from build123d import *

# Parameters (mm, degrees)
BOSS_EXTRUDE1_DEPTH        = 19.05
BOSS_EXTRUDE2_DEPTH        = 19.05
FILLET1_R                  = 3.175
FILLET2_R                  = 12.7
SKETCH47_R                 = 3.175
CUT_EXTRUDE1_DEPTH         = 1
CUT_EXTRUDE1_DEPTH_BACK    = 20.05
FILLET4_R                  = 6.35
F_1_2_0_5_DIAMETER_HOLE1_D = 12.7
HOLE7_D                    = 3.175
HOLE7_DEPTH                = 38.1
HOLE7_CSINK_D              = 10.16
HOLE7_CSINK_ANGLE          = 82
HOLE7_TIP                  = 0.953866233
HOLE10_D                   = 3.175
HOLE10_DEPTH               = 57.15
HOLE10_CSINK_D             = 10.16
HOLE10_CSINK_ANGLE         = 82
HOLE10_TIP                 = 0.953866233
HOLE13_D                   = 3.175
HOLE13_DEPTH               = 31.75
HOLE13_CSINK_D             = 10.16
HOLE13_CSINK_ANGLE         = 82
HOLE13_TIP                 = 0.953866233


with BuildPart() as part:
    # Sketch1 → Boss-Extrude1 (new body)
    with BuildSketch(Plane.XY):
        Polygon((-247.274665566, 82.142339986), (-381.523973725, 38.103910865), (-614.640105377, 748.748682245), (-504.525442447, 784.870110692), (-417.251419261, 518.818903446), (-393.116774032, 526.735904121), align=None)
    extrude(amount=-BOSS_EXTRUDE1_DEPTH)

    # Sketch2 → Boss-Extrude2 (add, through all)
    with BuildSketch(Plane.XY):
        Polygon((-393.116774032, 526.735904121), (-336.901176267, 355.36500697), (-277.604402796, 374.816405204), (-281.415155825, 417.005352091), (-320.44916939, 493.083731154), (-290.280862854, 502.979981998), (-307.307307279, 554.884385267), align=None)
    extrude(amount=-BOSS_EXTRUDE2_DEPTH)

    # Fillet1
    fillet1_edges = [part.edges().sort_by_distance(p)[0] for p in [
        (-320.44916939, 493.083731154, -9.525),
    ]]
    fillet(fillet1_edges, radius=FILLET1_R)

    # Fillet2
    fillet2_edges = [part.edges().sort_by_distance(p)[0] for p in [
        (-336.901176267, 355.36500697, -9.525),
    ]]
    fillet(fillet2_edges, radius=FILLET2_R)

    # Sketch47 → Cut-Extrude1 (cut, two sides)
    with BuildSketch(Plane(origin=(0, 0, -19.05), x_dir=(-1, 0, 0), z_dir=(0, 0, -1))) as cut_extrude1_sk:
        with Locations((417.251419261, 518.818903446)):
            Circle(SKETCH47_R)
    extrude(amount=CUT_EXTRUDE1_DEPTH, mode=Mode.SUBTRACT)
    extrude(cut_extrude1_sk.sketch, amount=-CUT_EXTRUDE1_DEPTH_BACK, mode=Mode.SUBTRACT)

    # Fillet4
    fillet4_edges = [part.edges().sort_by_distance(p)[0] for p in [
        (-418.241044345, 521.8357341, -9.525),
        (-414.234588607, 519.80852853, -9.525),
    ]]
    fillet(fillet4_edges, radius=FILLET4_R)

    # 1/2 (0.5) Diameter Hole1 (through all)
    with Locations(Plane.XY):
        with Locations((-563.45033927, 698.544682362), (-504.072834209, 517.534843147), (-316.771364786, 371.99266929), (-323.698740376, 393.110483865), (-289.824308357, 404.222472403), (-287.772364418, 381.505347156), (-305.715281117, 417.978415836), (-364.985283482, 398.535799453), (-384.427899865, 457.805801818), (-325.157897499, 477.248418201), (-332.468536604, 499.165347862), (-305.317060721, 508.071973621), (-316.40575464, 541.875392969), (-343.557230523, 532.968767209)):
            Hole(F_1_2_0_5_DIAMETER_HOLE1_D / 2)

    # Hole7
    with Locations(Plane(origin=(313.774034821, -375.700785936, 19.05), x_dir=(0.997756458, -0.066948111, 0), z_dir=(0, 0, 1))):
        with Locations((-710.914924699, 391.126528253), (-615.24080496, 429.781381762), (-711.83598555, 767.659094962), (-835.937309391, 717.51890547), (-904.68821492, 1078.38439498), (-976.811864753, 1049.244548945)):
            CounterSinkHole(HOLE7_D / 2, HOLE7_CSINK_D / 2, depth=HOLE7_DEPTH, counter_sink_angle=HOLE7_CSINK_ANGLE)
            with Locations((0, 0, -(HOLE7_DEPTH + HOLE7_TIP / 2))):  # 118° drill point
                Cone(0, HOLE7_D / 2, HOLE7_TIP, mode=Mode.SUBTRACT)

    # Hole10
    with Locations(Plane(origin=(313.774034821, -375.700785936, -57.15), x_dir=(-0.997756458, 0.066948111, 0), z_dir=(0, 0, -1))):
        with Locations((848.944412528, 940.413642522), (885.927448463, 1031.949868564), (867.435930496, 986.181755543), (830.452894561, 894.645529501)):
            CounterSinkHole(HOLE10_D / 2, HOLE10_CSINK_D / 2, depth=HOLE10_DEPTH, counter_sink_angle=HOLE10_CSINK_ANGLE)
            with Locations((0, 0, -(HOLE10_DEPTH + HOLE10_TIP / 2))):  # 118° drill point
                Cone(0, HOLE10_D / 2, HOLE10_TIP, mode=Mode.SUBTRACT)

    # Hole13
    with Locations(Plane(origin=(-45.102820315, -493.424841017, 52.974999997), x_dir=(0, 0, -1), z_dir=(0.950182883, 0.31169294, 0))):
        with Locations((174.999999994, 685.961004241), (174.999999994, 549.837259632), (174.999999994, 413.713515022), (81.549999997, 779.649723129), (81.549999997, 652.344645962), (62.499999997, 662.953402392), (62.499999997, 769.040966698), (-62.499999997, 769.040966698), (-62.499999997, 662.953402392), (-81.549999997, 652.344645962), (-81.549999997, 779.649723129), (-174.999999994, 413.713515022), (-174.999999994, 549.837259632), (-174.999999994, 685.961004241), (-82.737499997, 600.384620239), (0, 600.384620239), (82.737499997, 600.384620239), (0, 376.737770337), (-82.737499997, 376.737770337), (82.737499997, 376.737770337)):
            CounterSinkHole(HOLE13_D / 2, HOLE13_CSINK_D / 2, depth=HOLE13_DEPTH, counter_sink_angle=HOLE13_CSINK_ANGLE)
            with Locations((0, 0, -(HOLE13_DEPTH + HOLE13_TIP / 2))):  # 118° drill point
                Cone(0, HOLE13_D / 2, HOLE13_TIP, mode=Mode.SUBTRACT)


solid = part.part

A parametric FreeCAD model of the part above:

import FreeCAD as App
import Part
import Sketcher

V = App.Vector
Q = App.Units.Quantity


def edges_at(feature, points):
    """Names of the edges that pass closest to the given points."""
    edges = feature.Shape.Edges
    near = lambda p: min(range(len(edges)), key=lambda i: edges[i].distToShape(Part.Vertex(*p))[0])
    return sorted({f"Edge{near(p) + 1}" for p in points})


def add_polygon(sketch, points):
    """Adds a closed chain of lines whose ends are joined by coincident constraints."""
    first, n = sketch.GeometryCount, len(points)
    for a, b in zip(points, points[1:] + points[:1]):
        sketch.addGeometry(Part.LineSegment(App.Vector(*a, 0), App.Vector(*b, 0)), False)
    for i in range(n):
        sketch.addConstraint(Sketcher.Constraint("Coincident", first + i, 2, first + (i + 1) % n, 1))

doc = App.newDocument("Part")
body = doc.addObject("PartDesign::Body", "Body")

# Sketch on XY plane
sketch1 = doc.addObject("Sketcher::SketchObject", "Sketch")
body.addObject(sketch1)
sketch1.AttachmentSupport = (doc.XY_Plane, [""])
sketch1.MapMode = "FlatFace"
add_polygon(sketch1, [(-382, 38), (-247, 82), (-393, 527), (-417, 519), (-505, 785), (-615, 749)])  # lines 0-5
sketch1.addConstraint([
    Sketcher.Constraint("Perpendicular", 0, 1),
    Sketcher.Constraint("Perpendicular", 1, 2),
    Sketcher.Constraint("Perpendicular", 2, 3),
    Sketcher.Constraint("Perpendicular", 3, 4),
    Sketcher.Constraint("Perpendicular", 4, 5),
    Sketcher.Constraint("Distance", 2, Q("1 in")),
    Sketcher.Constraint("Distance", 3, 280.0),
    Sketcher.Constraint("DistanceY", 2, 2, 1, 2, 7.917001),
    Sketcher.Constraint("DistanceX", 1, 2, 5, 2, 11.5928),
    Sketcher.Constraint("DistanceY", 5, 2, 3, 2, 746.7662),
    Sketcher.Constraint("DistanceY", -1, 1, 0, 2, 82.14234),
    Sketcher.Constraint("DistanceX", 2, 2, -1, 1, 417.251419),
])
pad1 = doc.addObject("PartDesign::Pad", "Pad")
body.addObject(pad1)
pad1.Profile = sketch1
pad1.Length = Q("0.75 in")
pad1.Reversed = True

# Sketch on XY plane
sketch2 = doc.addObject("Sketcher::SketchObject", "Sketch001")
body.addObject(sketch2)
sketch2.AttachmentSupport = (doc.XY_Plane, [""])
sketch2.MapMode = "FlatFace"
add_polygon(sketch2, [(-393, 527), (-337, 355), (-278, 375), (-281, 417), (-320, 493), (-290, 503), (-307, 555)])  # lines 0-6
sketch2.addConstraint([
    Sketcher.Constraint("Perpendicular", 0, 1),
    Sketcher.Constraint("Parallel", 1, 4),
    Sketcher.Constraint("Perpendicular", 4, 5),
    Sketcher.Constraint("Perpendicular", 5, 6),
    Sketcher.Constraint("Distance", 4, Q("1.25 in")),
    Sketcher.Constraint("Distance", 0, 180.355698),
    Sketcher.Constraint("Distance", 5, 54.625698),
    Sketcher.Constraint("DistanceY", 0, 2, 1, 2, 19.451398),
    Sketcher.Constraint("Distance", 6, 90.308369),
    Sketcher.Constraint("DistanceX", 3, 2, -1, 1, 320.449169),
    Sketcher.Constraint("DistanceY", -1, 1, 3, 2, 493.083731),
    Sketcher.Constraint("DistanceY", -1, 1, 4, 2, 502.979982),
    Sketcher.Constraint("DistanceX", 0, 2, 2, 2, 55.48602),
    Sketcher.Constraint("DistanceY", 2, 2, 3, 2, 76.078379),
])
pad2 = doc.addObject("PartDesign::Pad", "Pad001")
body.addObject(pad2)
pad2.Profile = sketch2
pad2.Length = Q("0.75 in")
pad2.Reversed = True
doc.recompute()

fillet = doc.addObject("PartDesign::Fillet", "Fillet")
body.addObject(fillet)
fillet.Base = (pad2, edges_at(pad2, [(-320.449, 493.084, -9.525)]))
fillet.Radius = Q("0.125 in")
doc.recompute()

fillet2 = doc.addObject("PartDesign::Fillet", "Fillet001")
body.addObject(fillet2)
fillet2.Base = (fillet, edges_at(fillet, [(-336.901, 355.365, -9.525)]))
fillet2.Radius = Q("0.5 in")

# Sketch on XY plane
sketch3 = doc.addObject("Sketcher::SketchObject", "Sketch002")
body.addObject(sketch3)
sketch3.AttachmentSupport = (doc.XY_Plane, [""])
sketch3.MapMode = "FlatFace"
sketch3.AttachmentOffset = App.Placement(V(0, 0, -0.75 * 25.4), App.Rotation())
sketch3.addGeometry(Part.Circle(V(-417.3, 518.8, 0), V(0, 0, 1), 3.2), False)
sketch3.addConstraint([
    Sketcher.Constraint("Diameter", 0, Q("0.25 in")),
    Sketcher.Constraint("DistanceX", 0, 3, -1, 1, 417.251419),
    Sketcher.Constraint("DistanceY", -1, 1, 0, 3, 518.818903),
])
pocket1 = doc.addObject("PartDesign::Pocket", "Pocket")
body.addObject(pocket1)
pocket1.Profile = sketch3
pocket1.Type = "ThroughAll"
pocket1.Midplane = True
doc.recompute()

fillet3 = doc.addObject("PartDesign::Fillet", "Fillet002")
body.addObject(fillet3)
fillet3.Base = (pocket1, edges_at(pocket1, [(-418.241, 521.836, -9.525), (-414.235, 519.809, -9.525)]))
fillet3.Radius = Q("0.25 in")

# Sketch on XY plane
sketch4 = doc.addObject("Sketcher::SketchObject", "Sketch003")
body.addObject(sketch4)
sketch4.AttachmentSupport = (doc.XY_Plane, [""])
sketch4.MapMode = "FlatFace"
sketch4.addGeometry([
    Part.Circle(V(-563, 699, 0), V(0, 0, 1), 6),  # 0
    Part.Circle(V(-504, 518, 0), V(0, 0, 1), 6),  # 1
    Part.Circle(V(-317, 372, 0), V(0, 0, 1), 6),  # 2
    Part.Circle(V(-324, 393, 0), V(0, 0, 1), 6),  # 3
    Part.Circle(V(-290, 404, 0), V(0, 0, 1), 6),  # 4
    Part.Circle(V(-288, 382, 0), V(0, 0, 1), 6),  # 5
    Part.Circle(V(-306, 418, 0), V(0, 0, 1), 6),  # 6
    Part.Circle(V(-365, 399, 0), V(0, 0, 1), 6),  # 7
    Part.Circle(V(-384, 458, 0), V(0, 0, 1), 6),  # 8
    Part.Circle(V(-325, 477, 0), V(0, 0, 1), 6),  # 9
    Part.Circle(V(-332, 499, 0), V(0, 0, 1), 6),  # 10
    Part.Circle(V(-305, 508, 0), V(0, 0, 1), 6),  # 11
    Part.Circle(V(-316, 542, 0), V(0, 0, 1), 6),  # 12
    Part.Circle(V(-344, 533, 0), V(0, 0, 1), 6),  # 13
], False)
sketch4.addConstraint([
    Sketcher.Constraint("Equal", 0, 1),
    Sketcher.Constraint("Equal", 1, 2),
    Sketcher.Constraint("Equal", 2, 3),
    Sketcher.Constraint("Equal", 3, 4),
    Sketcher.Constraint("Equal", 4, 5),
    Sketcher.Constraint("Equal", 5, 6),
    Sketcher.Constraint("Equal", 6, 7),
    Sketcher.Constraint("Equal", 7, 8),
    Sketcher.Constraint("Equal", 8, 9),
    Sketcher.Constraint("Equal", 9, 10),
    Sketcher.Constraint("Equal", 10, 11),
    Sketcher.Constraint("Equal", 11, 12),
    Sketcher.Constraint("Equal", 12, 13),
    Sketcher.Constraint("Diameter", 0, Q("0.5 in")),
    Sketcher.Constraint("DistanceX", 8, 3, 11, 3, Q("3.1146 in")),
    Sketcher.Constraint("DistanceY", -1, 1, 7, 3, 398.535799),
    Sketcher.Constraint("DistanceX", 8, 3, -1, 1, 384.4279),
    Sketcher.Constraint("DistanceY", -1, 1, 8, 3, 457.805802),
    Sketcher.Constraint("DistanceX", 0, 3, 3, 3, 239.751599),
    Sketcher.Constraint("DistanceY", 3, 3, 0, 3, 305.434198),
    Sketcher.Constraint("DistanceX", 2, 3, 5, 3, 28.999),
    Sketcher.Constraint("DistanceY", 4, 3, 11, 3, 103.849501),
    Sketcher.Constraint("DistanceX", 0, 3, -1, 1, 563.450339),
    Sketcher.Constraint("DistanceY", -1, 1, 2, 3, 371.992669),
    Sketcher.Constraint("DistanceX", 4, 3, -1, 1, 289.824308),
    Sketcher.Constraint("DistanceX", 6, 3, -1, 1, 305.715281),
    Sketcher.Constraint("DistanceY", -1, 1, 9, 3, 477.248418),
    Sketcher.Constraint("DistanceX", 13, 3, -1, 1, 343.557231),
    Sketcher.Constraint("DistanceY", 1, 3, 0, 3, 181.009839),
    Sketcher.Constraint("DistanceX", 1, 3, 2, 3, 187.301469),
    Sketcher.Constraint("DistanceY", 3, 3, 4, 3, 11.111989),
    Sketcher.Constraint("DistanceY", 3, 3, 6, 3, 24.867932),
    Sketcher.Constraint("DistanceY", 5, 3, 6, 3, 36.473069),
    Sketcher.Constraint("DistanceX", 7, 3, 2, 3, 48.213919),
    Sketcher.Constraint("DistanceY", 4, 3, 8, 3, 53.583329),
    Sketcher.Constraint("DistanceX", 9, 3, 4, 3, 35.333589),
    Sketcher.Constraint("DistanceX", 10, 3, 9, 3, 7.310639),
    Sketcher.Constraint("DistanceY", 9, 3, 10, 3, 21.91693),
    Sketcher.Constraint("DistanceY", 11, 3, 12, 3, 33.803419),
    Sketcher.Constraint("DistanceX", 10, 3, 12, 3, 16.062782),
    Sketcher.Constraint("DistanceY", 10, 3, 13, 3, 33.803419),
    Sketcher.Constraint("DistanceX", 1, 3, -1, 1, 504.072834),
])
doc.recompute()
hole = doc.addObject("PartDesign::Hole", "Hole")
body.addObject(hole)
hole.Profile = sketch4
hole.ThreadType = "None"
hole.Diameter = Q("0.5 in")
hole.DepthType = "ThroughAll"

# Sketch on XY plane
sketch5 = doc.addObject("Sketcher::SketchObject", "Sketch004")
body.addObject(sketch5)
sketch5.AttachmentSupport = (doc.XY_Plane, [""])
sketch5.MapMode = "FlatFace"
sketch5.AttachmentOffset = App.Placement(V(0, 0, 0.75 * 25.4), App.Rotation())
sketch5.addGeometry([
    Part.Circle(V(-369.4, 62.1, 0), V(0, 0, 1), 1.6),  # 0
    Part.Circle(V(-271.3, 94.3, 0), V(0, 0, 1), 1.6),  # 1
    Part.Circle(V(-345.1, 437.9, 0), V(0, 0, 1), 1.6),  # 2
    Part.Circle(V(-472.3, 396.2, 0), V(0, 0, 1), 1.6),  # 3
    Part.Circle(V(-516.7, 760.8, 0), V(0, 0, 1), 1.6),  # 4
    Part.Circle(V(-590.6, 736.6, 0), V(0, 0, 1), 1.6),  # 5
], False)
sketch5.addConstraint([
    Sketcher.Constraint("Equal", 0, 1),
    Sketcher.Constraint("Equal", 1, 2),
    Sketcher.Constraint("Equal", 2, 3),
    Sketcher.Constraint("Equal", 3, 4),
    Sketcher.Constraint("Equal", 4, 5),
    Sketcher.Constraint("Diameter", 0, Q("0.125 in")),
    Sketcher.Constraint("DistanceX", 1, 3, -1, 1, 271.3134),
    Sketcher.Constraint("DistanceX", 0, 3, -1, 1, 369.36074),
    Sketcher.Constraint("DistanceX", 2, 3, -1, 1, 345.071591),
    Sketcher.Constraint("DistanceY", -1, 1, 2, 3, 437.892108),
    Sketcher.Constraint("DistanceX", 3, 3, -1, 1, 472.251279),
    Sketcher.Constraint("DistanceY", -1, 1, 3, 3, 396.17276),
    Sketcher.Constraint("DistanceX", 5, 3, -1, 1, 590.601371),
    Sketcher.Constraint("DistanceY", -1, 1, 5, 3, 736.585448),
    Sketcher.Constraint("DistanceY", 0, 3, 1, 3, 32.162928),
    Sketcher.Constraint("DistanceY", 0, 3, 4, 3, 698.688731),
    Sketcher.Constraint("DistanceY", -1, 1, 0, 3, 62.142645),
    Sketcher.Constraint("DistanceX", 4, 3, -1, 1, 516.688676),
])
doc.recompute()
hole2 = doc.addObject("PartDesign::Hole", "Hole001")
body.addObject(hole2)
hole2.Profile = sketch5
hole2.ThreadType = "None"
hole2.Diameter = Q("0.125 in")
hole2.DepthType = "Dimension"
hole2.Depth = Q("1.5 in")
hole2.DrillPoint = "Angled"
hole2.DrillPointAngle = 118
hole2.HoleCutType = "Countersink"
hole2.HoleCutDiameter = Q("0.4 in")
hole2.HoleCutCountersinkAngle = 82

# Sketch on XY plane
sketch6 = doc.addObject("Sketcher::SketchObject", "Sketch005")
body.addObject(sketch6)
sketch6.AttachmentSupport = (doc.XY_Plane, [""])
sketch6.MapMode = "FlatFace"
sketch6.AttachmentOffset = App.Placement(V(0, 0, -2.25 * 25.4), App.Rotation())
sketch6.addGeometry([
    Part.Circle(V(-470.3, 619.4, 0), V(0, 0, 1), 1.6),
    Part.Circle(V(-501.1, 713.2, 0), V(0, 0, 1), 1.6),
    Part.Circle(V(-485.7, 666.3, 0), V(0, 0, 1), 1.6),
    Part.Circle(V(-454.9, 572.5, 0), V(0, 0, 1), 1.6),
], False)
sketch6.addConstraint([
    Sketcher.Constraint("Equal", 0, 1),
    Sketcher.Constraint("Equal", 1, 2),
    Sketcher.Constraint("Equal", 2, 3),
    Sketcher.Constraint("Diameter", 0, Q("0.125 in")),
    Sketcher.Constraint("DistanceX", 0, 3, -1, 1, 470.306818),
    Sketcher.Constraint("DistanceY", -1, 1, 1, 3, 713.245029),
    Sketcher.Constraint("DistanceX", 2, 3, -1, 1, 485.692761),
    Sketcher.Constraint("DistanceY", -1, 1, 3, 3, 572.534821),
    Sketcher.Constraint("DistanceX", 1, 3, 3, 3, 46.157828),
    Sketcher.Constraint("DistanceY", -1, 1, 0, 3, 619.438224),
    Sketcher.Constraint("DistanceX", 1, 3, -1, 1, 501.078704),
    Sketcher.Constraint("DistanceY", -1, 1, 2, 3, 666.341627),
])
doc.recompute()
hole3 = doc.addObject("PartDesign::Hole", "Hole002")
body.addObject(hole3)
hole3.Profile = sketch6
hole3.ThreadType = "None"
hole3.Diameter = Q("0.125 in")
hole3.DepthType = "Dimension"
hole3.Depth = Q("2.25 in")
hole3.DrillPoint = "Angled"
hole3.DrillPointAngle = 118
hole3.HoleCutType = "Countersink"
hole3.HoleCutDiameter = Q("0.4 in")
hole3.HoleCutCountersinkAngle = 82
hole3.Reversed = True

# Sketch on an angled plane
sketch7 = doc.addObject("Sketcher::SketchObject", "Sketch006")
body.addObject(sketch7)
sketch7.Placement = App.Placement(V(-186.856283, -61.295342, 0), App.Rotation(V(0, 0, -1), V(-0.31169294, 0.950182883, 0), V(0.950182883, 0.31169294, 0), "ZXY"))
sketch7.addGeometry([
    Part.Circle(V(122, 231.2, 0), V(0, 0, 1), 1.6),  # 0
    Part.Circle(V(122, 95.1, 0), V(0, 0, 1), 1.6),  # 1
    Part.Circle(V(122, -41.1, 0), V(0, 0, 1), 1.6),  # 2
    Part.Circle(V(28.6, 324.9, 0), V(0, 0, 1), 1.6),  # 3
    Part.Circle(V(28.6, 197.6, 0), V(0, 0, 1), 1.6),  # 4
    Part.Circle(V(9.5, 208.2, 0), V(0, 0, 1), 1.6),  # 5
    Part.Circle(V(9.5, 314.3, 0), V(0, 0, 1), 1.6),  # 6
    Part.Circle(V(-115.5, 314.3, 0), V(0, 0, 1), 1.6),  # 7
    Part.Circle(V(-115.5, 208.2, 0), V(0, 0, 1), 1.6),  # 8
    Part.Circle(V(-134.5, 197.6, 0), V(0, 0, 1), 1.6),  # 9
    Part.Circle(V(-134.5, 324.9, 0), V(0, 0, 1), 1.6),  # 10
    Part.Circle(V(-228, -41.1, 0), V(0, 0, 1), 1.6),  # 11
    Part.Circle(V(-228, 95.1, 0), V(0, 0, 1), 1.6),  # 12
    Part.Circle(V(-228, 231.2, 0), V(0, 0, 1), 1.6),  # 13
    Part.Circle(V(-135.7, 145.6, 0), V(0, 0, 1), 1.6),  # 14
    Part.Circle(V(-53, 145.6, 0), V(0, 0, 1), 1.6),  # 15
    Part.Circle(V(29.8, 145.6, 0), V(0, 0, 1), 1.6),  # 16
    Part.Circle(V(-53, -78, 0), V(0, 0, 1), 1.6),  # 17
    Part.Circle(V(-135.7, -78, 0), V(0, 0, 1), 1.6),  # 18
    Part.Circle(V(29.8, -78, 0), V(0, 0, 1), 1.6),  # 19
], False)
sketch7.addConstraint([
    Sketcher.Constraint("Equal", 0, 1),
    Sketcher.Constraint("Equal", 1, 2),
    Sketcher.Constraint("Equal", 2, 3),
    Sketcher.Constraint("Equal", 3, 4),
    Sketcher.Constraint("Equal", 4, 5),
    Sketcher.Constraint("Equal", 5, 6),
    Sketcher.Constraint("Equal", 6, 7),
    Sketcher.Constraint("Equal", 7, 8),
    Sketcher.Constraint("Equal", 8, 9),
    Sketcher.Constraint("Equal", 9, 10),
    Sketcher.Constraint("Equal", 10, 11),
    Sketcher.Constraint("Equal", 11, 12),
    Sketcher.Constraint("Equal", 12, 13),
    Sketcher.Constraint("Equal", 13, 14),
    Sketcher.Constraint("Equal", 14, 15),
    Sketcher.Constraint("Equal", 15, 16),
    Sketcher.Constraint("Equal", 16, 17),
    Sketcher.Constraint("Equal", 17, 18),
    Sketcher.Constraint("Equal", 18, 19),
    Sketcher.Constraint("Horizontal", 6, 3, 7, 3),
    Sketcher.Constraint("Horizontal", 5, 3, 8, 3),
    Sketcher.Constraint("Horizontal", 4, 3, 9, 3),
    Sketcher.Constraint("Horizontal", 3, 3, 10, 3),
    Sketcher.Constraint("Horizontal", 2, 3, 11, 3),
    Sketcher.Constraint("Horizontal", 1, 3, 12, 3),
    Sketcher.Constraint("Horizontal", 0, 3, 13, 3),
    Sketcher.Constraint("Horizontal", 14, 3, 15, 3),
    Sketcher.Constraint("Horizontal", 15, 3, 16, 3),
    Sketcher.Constraint("Horizontal", 17, 3, 18, 3),
    Sketcher.Constraint("Horizontal", 18, 3, 19, 3),
    Sketcher.Constraint("Vertical", 0, 3, 1, 3),
    Sketcher.Constraint("Vertical", 1, 3, 2, 3),
    Sketcher.Constraint("Vertical", 3, 3, 4, 3),
    Sketcher.Constraint("Vertical", 5, 3, 6, 3),
    Sketcher.Constraint("Vertical", 7, 3, 8, 3),
    Sketcher.Constraint("Vertical", 9, 3, 10, 3),
    Sketcher.Constraint("Vertical", 11, 3, 12, 3),
    Sketcher.Constraint("Vertical", 12, 3, 13, 3),
    Sketcher.Constraint("Vertical", 15, 3, 17, 3),
    Sketcher.Constraint("Vertical", 14, 3, 18, 3),
    Sketcher.Constraint("Vertical", 16, 3, 19, 3),
    Sketcher.Constraint("Diameter", 0, Q("0.125 in")),
    Sketcher.Constraint("DistanceX", 5, 3, 4, 3, Q("0.75 in")),
    Sketcher.Constraint("DistanceX", 9, 3, 8, 3, Q("0.75 in")),
    Sketcher.Constraint("DistanceX", -1, 1, 3, 3, Q("1.125 in")),
    Sketcher.Constraint("DistanceX", -1, 1, 0, 3, 122.025),
    Sketcher.Constraint("DistanceX", 7, 3, -1, 1, 115.475),
    Sketcher.Constraint("DistanceX", 11, 3, -1, 1, 227.975),
    Sketcher.Constraint("DistanceX", 14, 3, -1, 1, 135.7125),
    Sketcher.Constraint("DistanceX", 15, 3, -1, 1, 52.975),
    Sketcher.Constraint("DistanceX", -1, 1, 16, 3, 29.7625),
    Sketcher.Constraint("DistanceY", 5, 3, 0, 3, 23.007602),
    Sketcher.Constraint("DistanceY", -1, 1, 4, 3, 197.559039),
    Sketcher.Constraint("DistanceY", -1, 1, 6, 3, 314.255359),
    Sketcher.Constraint("DistanceY", 2, 3, 0, 3, 272.247489),
    Sketcher.Constraint("DistanceY", 0, 3, 3, 3, 93.688719),
    Sketcher.Constraint("DistanceY", 4, 3, 0, 3, 33.616358),
    Sketcher.Constraint("DistanceY", 12, 3, 14, 3, 50.547361),
    Sketcher.Constraint("DistanceY", 17, 3, 15, 3, 223.64685),
    Sketcher.Constraint("DistanceY", -1, 1, 1, 3, 95.051652),
])
doc.recompute()
hole4 = doc.addObject("PartDesign::Hole", "Hole003")
body.addObject(hole4)
hole4.Profile = sketch7
hole4.ThreadType = "None"
hole4.Diameter = Q("0.125 in")
hole4.DepthType = "Dimension"
hole4.Depth = Q("1.25 in")
hole4.DrillPoint = "Angled"
hole4.DrillPointAngle = 118
hole4.HoleCutType = "Countersink"
hole4.HoleCutDiameter = Q("0.4 in")
hole4.HoleCutCountersinkAngle = 82

doc.recompute()
